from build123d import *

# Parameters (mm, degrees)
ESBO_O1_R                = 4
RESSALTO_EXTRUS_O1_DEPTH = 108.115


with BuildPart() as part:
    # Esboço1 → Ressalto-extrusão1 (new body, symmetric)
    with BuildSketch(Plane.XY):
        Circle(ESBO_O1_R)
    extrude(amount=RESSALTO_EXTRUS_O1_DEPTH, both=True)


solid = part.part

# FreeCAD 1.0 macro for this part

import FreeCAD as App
import Part
import Sketcher
Q = App.Units.Quantity

doc = App.newDocument("Part")
body = doc.addObject("PartDesign::Body", "Body")

# Sketch on XY plane
sketch1 = body.newObject("Sketcher::SketchObject", "Sketch")
sketch1.AttachmentSupport = (doc.getObject("XY_Plane"), [""])
sketch1.MapMode = "FlatFace"
sketch1.addGeometry(Part.Circle(App.Vector(0, 0, 0), App.Vector(0, 0, 1), 4), False)
sketch1.addConstraint([
    Sketcher.Constraint("Coincident", 0, 3, -1, 1),
    Sketcher.Constraint("Diameter", 0, Q("8 mm")),
])
pad1 = body.newObject("PartDesign::Pad", "Pad")
pad1.Profile = sketch1
pad1.Length = 216.23
pad1.Midplane = True

doc.recompute()
